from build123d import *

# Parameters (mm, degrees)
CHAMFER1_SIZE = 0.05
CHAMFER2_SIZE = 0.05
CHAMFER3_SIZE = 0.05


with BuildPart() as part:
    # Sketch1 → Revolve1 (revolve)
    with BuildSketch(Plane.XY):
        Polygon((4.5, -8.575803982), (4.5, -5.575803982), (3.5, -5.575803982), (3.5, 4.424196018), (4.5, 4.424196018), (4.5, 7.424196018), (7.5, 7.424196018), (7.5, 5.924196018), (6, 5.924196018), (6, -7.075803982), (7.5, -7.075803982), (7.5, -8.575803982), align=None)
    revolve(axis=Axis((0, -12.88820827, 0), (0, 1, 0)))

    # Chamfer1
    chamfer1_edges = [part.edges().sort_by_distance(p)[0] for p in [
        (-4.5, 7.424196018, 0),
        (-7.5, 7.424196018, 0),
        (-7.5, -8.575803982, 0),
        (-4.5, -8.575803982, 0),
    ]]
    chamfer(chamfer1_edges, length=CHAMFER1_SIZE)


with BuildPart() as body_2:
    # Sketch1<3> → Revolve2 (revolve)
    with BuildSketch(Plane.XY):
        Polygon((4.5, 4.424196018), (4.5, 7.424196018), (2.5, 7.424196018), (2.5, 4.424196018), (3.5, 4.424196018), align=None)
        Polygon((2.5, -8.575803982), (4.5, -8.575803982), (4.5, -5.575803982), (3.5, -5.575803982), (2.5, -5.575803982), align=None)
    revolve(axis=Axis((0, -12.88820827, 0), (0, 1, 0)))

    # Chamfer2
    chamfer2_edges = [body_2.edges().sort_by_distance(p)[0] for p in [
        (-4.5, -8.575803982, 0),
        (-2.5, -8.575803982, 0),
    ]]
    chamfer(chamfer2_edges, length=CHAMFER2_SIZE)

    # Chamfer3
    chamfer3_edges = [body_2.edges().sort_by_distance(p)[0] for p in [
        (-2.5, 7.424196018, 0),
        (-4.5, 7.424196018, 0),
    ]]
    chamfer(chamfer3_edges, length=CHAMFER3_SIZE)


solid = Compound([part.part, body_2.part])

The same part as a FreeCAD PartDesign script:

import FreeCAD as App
import Part
import Sketcher
from FreeCAD import Vector
Q = App.Units.Quantity


def edges_at(feature, points):
    """Names of the edges that pass closest to the given points."""
    edges = feature.Shape.Edges
    near = lambda p: min(range(len(edges)), key=lambda i: edges[i].distToShape(Part.Vertex(*p))[0])
    return sorted({f"Edge{near(p) + 1}" for p in points})


def add_polygon(sketch, points):
    """Adds a closed chain of lines whose ends are joined by coincident constraints."""
    first, n = sketch.GeometryCount, len(points)
    for a, b in zip(points, points[1:] + points[:1]):
        sketch.addGeometry(Part.LineSegment(App.Vector(*a, 0), App.Vector(*b, 0)), False)
    for i in range(n):
        sketch.addConstraint(Sketcher.Constraint("Coincident", first + i, 2, first + (i + 1) % n, 1))

doc = App.newDocument("Part")
params = doc.addObject("Spreadsheet::Sheet", "Params")
for row, (alias, value) in enumerate([
    ("sketch1_width", "3 mm"),
    ("sketch1_width2", "1 mm"),
    ("sketch1_height", "13 mm"),
    ("sketch1_height2", "10 mm"),
    ("revolution_angle", "360 deg"),
    ("chamfer_size", "0.05 mm"),
    ("sketch2_width", "2 mm"),
    ("sketch2_height", "3 mm"),
    ("revolution2_angle", "360 deg"),
    ("chamfer2_size", "0.05 mm"),
    ("chamfer3_size", "0.05 mm"),
], start=1):
    params.set(f"A{row}", alias)
    params.set(f"B{row}", "=" + value)
    params.setAlias(f"B{row}", alias)

body = doc.addObject("PartDesign::Body", "Body")

# Sketch on XY plane
sketch1 = body.newObject("Sketcher::SketchObject", "Sketch")
sketch1.AttachmentSupport = (doc.getObject("XY_Plane"), [""])
sketch1.MapMode = "FlatFace"
add_polygon(sketch1, [(4.5, -5.6), (4.5, -8.6), (7.5, -8.6), (7.5, -7.1), (6, -7.1), (6, 5.9), (7.5, 5.9), (7.5, 7.4), (4.5, 7.4), (4.5, 4.4), (3.5, 4.4), (3.5, -5.6)])  # lines 0-11
sketch1.addConstraint([
    Sketcher.Constraint("Vertical", 0),
    Sketcher.Constraint("Horizontal", 1),
    Sketcher.Constraint("Vertical", 2),
    Sketcher.Constraint("Horizontal", 3),
    Sketcher.Constraint("Vertical", 4),
    Sketcher.Constraint("Horizontal", 5),
    Sketcher.Constraint("Vertical", 6),
    Sketcher.Constraint("Horizontal", 7),
    Sketcher.Constraint("Vertical", 8),
    Sketcher.Constraint("Horizontal", 9),
    Sketcher.Constraint("Vertical", 10),
    Sketcher.Constraint("Horizontal", 11),
    Sketcher.Constraint("Vertical", 2, 2, 5, 2),
    Sketcher.Constraint("Vertical", 0, 2, 7, 2),
    Sketcher.Constraint("Equal", 7, 0),
    Sketcher.Constraint("Equal", 5, 2),
    Sketcher.Constraint("Equal", 2, 6),
    Sketcher.Constraint("Equal", 0, 8),
    Sketcher.Constraint("DistanceX", 1, 1, 1, 2, Q("3 mm")),
    Sketcher.Constraint("DistanceX", 9, 2, 9, 1, Q("1 mm")),
    Sketcher.Constraint("DistanceY", 4, 1, 4, 2, Q("13 mm")),
    Sketcher.Constraint("DistanceY", 10, 2, 10, 1, Q("10 mm")),
    Sketcher.Constraint("DistanceX", -1, 1, 3, 2, Q("6 mm")),
    Sketcher.Constraint("DistanceY", 0, 2, -1, 1, Q("8.575804 mm")),
])
sketch1.setExpression("Constraints[30]", "Params.sketch1_width")
sketch1.setExpression("Constraints[31]", "Params.sketch1_width2")
sketch1.setExpression("Constraints[32]", "Params.sketch1_height")
sketch1.setExpression("Constraints[33]", "Params.sketch1_height2")
revolution = body.newObject("PartDesign::Revolution", "Revolution")
revolution.Profile = sketch1
revolution.ReferenceAxis = (sketch1, ["V_Axis"])
revolution.setExpression("Angle", "Params.revolution_angle")
doc.recompute()

chamfer = body.newObject("PartDesign::Chamfer", "Chamfer")
chamfer.Base = (revolution, edges_at(revolution, [
    (-4.5, 7.424, 0),
    (-7.5, 7.424, 0),
    (-7.5, -8.576, 0),
    (-4.5, -8.576, 0),
]))
chamfer.setExpression("Size", "Params.chamfer_size")
body2 = doc.addObject("PartDesign::Body", "Body001")
body2.AllowCompound = True

# Sketch on XY plane
sketch2 = body2.newObject("Sketcher::SketchObject", "Sketch001")
sketch2.AttachmentSupport = (doc.getObject("XY_Plane001"), [""])
sketch2.MapMode = "FlatFace"
add_polygon(sketch2, [(4.5, 4.4), (4.5, 7.4), (2.5, 7.4), (2.5, 4.4)])  # lines 0-3
add_polygon(sketch2, [(2.5, -8.6), (4.5, -8.6), (4.5, -5.6), (2.5, -5.6)])  # lines 4-7
sketch2.addConstraint([
    Sketcher.Constraint("Vertical", 0),
    Sketcher.Constraint("Horizontal", 1),
    Sketcher.Constraint("Vertical", 2),
    Sketcher.Constraint("Horizontal", 3),
    Sketcher.Constraint("Horizontal", 4),
    Sketcher.Constraint("Vertical", 5),
    Sketcher.Constraint("Horizontal", 6),
    Sketcher.Constraint("Vertical", 7),
    Sketcher.Constraint("Vertical", 3, 2, 4, 2),
    Sketcher.Constraint("Vertical", 2, 2, 6, 2),
    Sketcher.Constraint("Equal", 2, 5),
    Sketcher.Constraint("DistanceX", 1, 2, 1, 1, Q("2 mm")),
    Sketcher.Constraint("DistanceY", 0, 1, 0, 2, Q("3 mm")),
    Sketcher.Constraint("DistanceY", 4, 2, 3, 2, Q("13 mm")),
    Sketcher.Constraint("DistanceX", -1, 1, 0, 2, Q("4.5 mm")),
    Sketcher.Constraint("DistanceY", -1, 1, 0, 2, Q("7.424196 mm")),
])
sketch2.setExpression("Constraints[19]", "Params.sketch2_width")
sketch2.setExpression("Constraints[20]", "Params.sketch2_height")
revolution2 = body2.newObject("PartDesign::Revolution", "Revolution001")
revolution2.Profile = sketch2
revolution2.ReferenceAxis = (sketch2, ["V_Axis"])
revolution2.setExpression("Angle", "Params.revolution2_angle")
doc.recompute()

chamfer2 = body2.newObject("PartDesign::Chamfer", "Chamfer001")
chamfer2.Base = (revolution2, edges_at(revolution2, [(-4.5, -8.576, 0), (-2.5, -8.576, 0)]))
chamfer2.setExpression("Size", "Params.chamfer2_size")
doc.recompute()

chamfer3 = body2.newObject("PartDesign::Chamfer", "Chamfer002")
chamfer3.Base = (chamfer2, edges_at(chamfer2, [(-2.5, 7.424, 0), (-4.5, 7.424, 0)]))
chamfer3.setExpression("Size", "Params.chamfer3_size")

doc.recompute()
